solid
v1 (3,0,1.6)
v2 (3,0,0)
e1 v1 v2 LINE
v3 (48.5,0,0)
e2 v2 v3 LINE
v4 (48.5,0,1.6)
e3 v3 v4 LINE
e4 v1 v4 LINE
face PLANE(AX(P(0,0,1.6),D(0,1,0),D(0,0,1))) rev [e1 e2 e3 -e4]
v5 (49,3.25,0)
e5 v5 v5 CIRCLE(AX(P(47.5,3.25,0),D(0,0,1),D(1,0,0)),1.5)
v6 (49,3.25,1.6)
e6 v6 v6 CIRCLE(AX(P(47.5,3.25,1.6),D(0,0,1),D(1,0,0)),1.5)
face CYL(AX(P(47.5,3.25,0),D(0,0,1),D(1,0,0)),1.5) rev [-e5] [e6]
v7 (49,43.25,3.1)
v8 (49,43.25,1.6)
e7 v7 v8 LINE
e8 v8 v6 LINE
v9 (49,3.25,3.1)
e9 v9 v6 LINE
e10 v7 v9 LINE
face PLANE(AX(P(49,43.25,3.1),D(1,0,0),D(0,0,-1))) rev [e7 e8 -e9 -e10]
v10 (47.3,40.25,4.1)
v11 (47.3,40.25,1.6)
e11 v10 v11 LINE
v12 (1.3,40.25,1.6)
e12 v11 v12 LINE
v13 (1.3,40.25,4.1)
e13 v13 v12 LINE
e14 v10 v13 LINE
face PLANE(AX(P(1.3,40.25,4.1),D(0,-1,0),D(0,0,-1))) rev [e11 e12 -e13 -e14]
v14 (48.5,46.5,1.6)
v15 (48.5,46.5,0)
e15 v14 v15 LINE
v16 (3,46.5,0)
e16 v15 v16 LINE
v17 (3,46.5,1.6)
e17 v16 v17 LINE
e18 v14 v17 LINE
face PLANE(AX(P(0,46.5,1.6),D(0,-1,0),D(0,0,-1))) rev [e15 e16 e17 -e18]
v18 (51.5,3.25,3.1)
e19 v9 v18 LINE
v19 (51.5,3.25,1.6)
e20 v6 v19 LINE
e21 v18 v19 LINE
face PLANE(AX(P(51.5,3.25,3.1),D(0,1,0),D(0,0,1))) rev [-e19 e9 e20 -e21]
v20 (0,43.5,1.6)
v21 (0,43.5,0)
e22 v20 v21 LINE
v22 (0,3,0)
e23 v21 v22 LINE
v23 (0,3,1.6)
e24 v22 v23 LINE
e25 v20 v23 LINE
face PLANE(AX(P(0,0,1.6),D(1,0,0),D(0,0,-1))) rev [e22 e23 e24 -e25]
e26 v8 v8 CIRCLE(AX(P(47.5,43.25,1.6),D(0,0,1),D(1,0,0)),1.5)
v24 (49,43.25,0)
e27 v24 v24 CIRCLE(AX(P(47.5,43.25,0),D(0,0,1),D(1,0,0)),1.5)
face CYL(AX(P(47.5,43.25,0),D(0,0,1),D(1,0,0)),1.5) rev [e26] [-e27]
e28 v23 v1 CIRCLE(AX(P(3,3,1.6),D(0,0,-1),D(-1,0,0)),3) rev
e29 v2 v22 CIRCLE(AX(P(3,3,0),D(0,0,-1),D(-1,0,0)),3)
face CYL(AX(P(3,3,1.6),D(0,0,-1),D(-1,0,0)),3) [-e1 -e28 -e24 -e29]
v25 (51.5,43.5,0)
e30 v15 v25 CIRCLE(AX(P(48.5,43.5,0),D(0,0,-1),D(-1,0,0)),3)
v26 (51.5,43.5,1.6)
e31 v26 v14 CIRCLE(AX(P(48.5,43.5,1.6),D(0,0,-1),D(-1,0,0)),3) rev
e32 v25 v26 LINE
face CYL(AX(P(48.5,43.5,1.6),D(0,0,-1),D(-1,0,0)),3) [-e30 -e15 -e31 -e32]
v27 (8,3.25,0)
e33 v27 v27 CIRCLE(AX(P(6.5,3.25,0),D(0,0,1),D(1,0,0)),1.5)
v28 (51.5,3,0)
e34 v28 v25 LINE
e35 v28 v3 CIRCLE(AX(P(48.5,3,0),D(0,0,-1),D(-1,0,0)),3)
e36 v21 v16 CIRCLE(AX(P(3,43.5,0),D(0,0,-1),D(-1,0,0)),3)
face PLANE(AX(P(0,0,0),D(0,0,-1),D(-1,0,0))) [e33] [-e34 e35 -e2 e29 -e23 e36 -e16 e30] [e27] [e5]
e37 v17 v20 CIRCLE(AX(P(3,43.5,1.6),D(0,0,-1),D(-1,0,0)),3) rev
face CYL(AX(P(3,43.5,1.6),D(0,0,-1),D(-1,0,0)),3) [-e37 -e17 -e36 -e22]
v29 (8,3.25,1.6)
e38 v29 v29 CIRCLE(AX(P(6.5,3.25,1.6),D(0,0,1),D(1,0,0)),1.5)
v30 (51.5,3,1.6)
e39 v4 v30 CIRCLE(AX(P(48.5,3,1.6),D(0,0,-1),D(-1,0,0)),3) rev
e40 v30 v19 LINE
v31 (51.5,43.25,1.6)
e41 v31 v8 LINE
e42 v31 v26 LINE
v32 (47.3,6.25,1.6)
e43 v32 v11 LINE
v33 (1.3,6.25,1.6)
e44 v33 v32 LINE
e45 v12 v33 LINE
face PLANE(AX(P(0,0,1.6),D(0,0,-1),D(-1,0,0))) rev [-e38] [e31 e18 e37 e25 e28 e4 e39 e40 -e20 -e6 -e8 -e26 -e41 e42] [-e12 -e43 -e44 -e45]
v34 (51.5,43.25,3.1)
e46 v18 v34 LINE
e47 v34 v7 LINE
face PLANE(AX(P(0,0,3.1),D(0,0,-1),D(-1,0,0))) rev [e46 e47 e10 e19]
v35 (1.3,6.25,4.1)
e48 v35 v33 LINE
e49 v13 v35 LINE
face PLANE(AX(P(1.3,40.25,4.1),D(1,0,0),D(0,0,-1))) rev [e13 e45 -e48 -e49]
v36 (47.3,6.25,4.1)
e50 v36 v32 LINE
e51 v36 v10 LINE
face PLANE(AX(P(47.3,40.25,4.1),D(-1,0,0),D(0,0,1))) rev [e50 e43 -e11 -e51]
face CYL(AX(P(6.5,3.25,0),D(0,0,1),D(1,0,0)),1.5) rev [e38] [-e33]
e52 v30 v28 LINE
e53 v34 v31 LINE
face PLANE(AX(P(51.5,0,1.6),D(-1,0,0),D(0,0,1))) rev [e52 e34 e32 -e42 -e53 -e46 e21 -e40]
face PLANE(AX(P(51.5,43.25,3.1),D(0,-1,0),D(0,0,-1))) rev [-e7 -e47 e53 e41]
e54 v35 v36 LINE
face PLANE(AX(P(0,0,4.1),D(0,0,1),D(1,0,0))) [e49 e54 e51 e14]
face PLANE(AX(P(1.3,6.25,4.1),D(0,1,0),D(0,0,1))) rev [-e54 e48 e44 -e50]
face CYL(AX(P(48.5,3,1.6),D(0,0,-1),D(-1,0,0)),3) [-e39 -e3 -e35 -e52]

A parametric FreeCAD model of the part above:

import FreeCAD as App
import Part
import Sketcher

V = App.Vector


def edges_at(feature, points):
    """Names of the edges that pass closest to the given points."""
    edges = feature.Shape.Edges
    near = lambda p: min(range(len(edges)), key=lambda i: edges[i].distToShape(Part.Vertex(*p))[0])
    return sorted({f"Edge{near(p) + 1}" for p in points})

doc = App.newDocument("Part")
params = doc.addObject("Spreadsheet::Sheet", "Params")
for row, (alias, value) in enumerate([
    ("sketch1_width", "51.5 mm"),
    ("sketch1_height", "46.5 mm"),
    ("pad1_length", "1.6 mm"),
    ("sketch2_width", "46 mm"),
    ("sketch2_height", "34 mm"),
    ("pad2_length", "2.5 mm"),
    ("sketch3_height", "40 mm"),
    ("sketch3_width", "2.5 mm"),
    ("pad3_length", "1.5 mm"),
    ("sketch4_diameter", "3 mm"),
    ("fillet_radius", "3 mm"),
], start=1):
    params.set(f"A{row}", alias)
    params.set(f"B{row}", "=" + value)
    params.setAlias(f"B{row}", alias)

body = doc.addObject("PartDesign::Body", "Body")

sketch1 = body.newObject("Sketcher::SketchObject", "Sketch")
sketch1.AttachmentSupport = (doc.getObject("XY_Plane"), [""])
sketch1.MapMode = "FlatFace"
sketch1.addGeometry([
    Part.LineSegment(V(0, 46, 0), V(0, 0, 0)),
    Part.LineSegment(V(0, 0, 0), V(52, 0, 0)),
    Part.LineSegment(V(52, 0, 0), V(52, 46, 0)),
    Part.LineSegment(V(52, 46, 0), V(0, 46, 0)),
], False)
sketch1.addConstraint([
    Sketcher.Constraint("Coincident", 0, 2, 1, 1),
    Sketcher.Constraint("Coincident", 1, 2, 2, 1),
    Sketcher.Constraint("Coincident", 2, 2, 3, 1),
    Sketcher.Constraint("Coincident", 3, 2, 0, 1),
    Sketcher.Constraint("Vertical", 0),
    Sketcher.Constraint("Horizontal", 1),
    Sketcher.Constraint("Vertical", 2),
    Sketcher.Constraint("Horizontal", 3),
    Sketcher.Constraint("Coincident", 0, 2, -1, 1),
    Sketcher.Constraint("DistanceX", 1, 1, 1, 2, 51.5),
    Sketcher.Constraint("DistanceY", 0, 2, 0, 1, 46.5),
])
sketch1.setExpression("Constraints[9]", "Params.sketch1_width")
sketch1.setExpression("Constraints[10]", "Params.sketch1_height")
pad1 = body.newObject("PartDesign::Pad", "Pad")
pad1.Profile = sketch1
pad1.setExpression("Length", "Params.pad1_length")

sketch2 = body.newObject("Sketcher::SketchObject", "Sketch001")
sketch2.AttachmentSupport = (doc.getObject("XY_Plane"), [""])
sketch2.MapMode = "FlatFace"
sketch2.AttachmentOffset = App.Placement(V(0, 0, 1.6), App.Rotation())
sketch2.addGeometry([
    Part.LineSegment(V(1, 40, 0), V(1, 6, 0)),
    Part.LineSegment(V(1, 6, 0), V(47, 6, 0)),
    Part.LineSegment(V(47, 6, 0), V(47, 40, 0)),
    Part.LineSegment(V(47, 40, 0), V(1, 40, 0)),
], False)
sketch2.addConstraint([
    Sketcher.Constraint("Coincident", 0, 2, 1, 1),
    Sketcher.Constraint("Coincident", 1, 2, 2, 1),
    Sketcher.Constraint("Coincident", 2, 2, 3, 1),
    Sketcher.Constraint("Coincident", 3, 2, 0, 1),
    Sketcher.Constraint("Vertical", 0),
    Sketcher.Constraint("Horizontal", 1),
    Sketcher.Constraint("Vertical", 2),
    Sketcher.Constraint("Horizontal", 3),
    Sketcher.Constraint("DistanceX", 1, 1, 1, 2, 46.0),
    Sketcher.Constraint("DistanceY", 0, 2, 0, 1, 34.0),
    Sketcher.Constraint("DistanceX", -1, 1, 0, 2, 1.3),
    Sketcher.Constraint("DistanceY", -1, 1, 0, 2, 6.25),
])
sketch2.setExpression("Constraints[8]", "Params.sketch2_width")
sketch2.setExpression("Constraints[9]", "Params.sketch2_height")
pad2 = body.newObject("PartDesign::Pad", "Pad001")
pad2.Profile = sketch2
pad2.setExpression("Length", "Params.pad2_length")

sketch3 = body.newObject("Sketcher::SketchObject", "Sketch002")
sketch3.AttachmentSupport = (doc.getObject("XY_Plane"), [""])
sketch3.MapMode = "FlatFace"
sketch3.AttachmentOffset = App.Placement(V(0, 0, 1.6), App.Rotation())
sketch3.addGeometry([
    Part.LineSegment(V(49, 43.2, 0), V(49, 3.2, 0)),
    Part.LineSegment(V(49, 3.2, 0), V(51.5, 3.2, 0)),
    Part.LineSegment(V(51.5, 3.2, 0), V(51.5, 43.2, 0)),
    Part.LineSegment(V(51.5, 43.2, 0), V(49, 43.2, 0)),
], False)
sketch3.addConstraint([
    Sketcher.Constraint("Coincident", 0, 2, 1, 1),
    Sketcher.Constraint("Coincident", 1, 2, 2, 1),
    Sketcher.Constraint("Coincident", 2, 2, 3, 1),
    Sketcher.Constraint("Coincident", 3, 2, 0, 1),
    Sketcher.Constraint("Vertical", 0),
    Sketcher.Constraint("Horizontal", 1),
    Sketcher.Constraint("Vertical", 2),
    Sketcher.Constraint("Horizontal", 3),
    Sketcher.Constraint("DistanceY", 0, 2, 0, 1, 40.0),
    Sketcher.Constraint("DistanceX", 1, 1, 1, 2, 2.5),
    Sketcher.Constraint("DistanceX", -1, 1, 0, 2, 49.0),
    Sketcher.Constraint("DistanceY", -1, 1, 0, 2, 3.25),
])
sketch3.setExpression("Constraints[8]", "Params.sketch3_height")
sketch3.setExpression("Constraints[9]", "Params.sketch3_width")
pad3 = body.newObject("PartDesign::Pad", "Pad002")
pad3.Profile = sketch3
pad3.setExpression("Length", "Params.pad3_length")

sketch4 = body.newObject("Sketcher::SketchObject", "Sketch003")
sketch4.AttachmentSupport = (doc.getObject("XY_Plane"), [""])
sketch4.MapMode = "FlatFace"
sketch4.AttachmentOffset = App.Placement(V(0, 0, 1.6), App.Rotation())
sketch4.addGeometry([
    Part.Circle(V(47.5, 3.2, 0), V(0, 0, 1), 1.5),
    Part.Circle(V(47.5, 43.2, 0), V(0, 0, 1), 1.5),
    Part.Circle(V(6.5, 3.2, 0), V(0, 0, 1), 1.5),
], False)
sketch4.addConstraint([
    Sketcher.Constraint("Equal", 0, 1),
    Sketcher.Constraint("Equal", 1, 2),
    Sketcher.Constraint("Horizontal", 0, 3, 2, 3),
    Sketcher.Constraint("Vertical", 0, 3, 1, 3),
    Sketcher.Constraint("Diameter", 0, 3.0),
    Sketcher.Constraint("DistanceY", 0, 3, 1, 3, 40.0),
    Sketcher.Constraint("DistanceX", 2, 3, 0, 3, 41.0),
    Sketcher.Constraint("DistanceX", -1, 1, 0, 3, 47.5),
    Sketcher.Constraint("DistanceY", -1, 1, 0, 3, 3.25),
])
sketch4.setExpression("Constraints[4]", "Params.sketch4_diameter")
pocket1 = body.newObject("PartDesign::Pocket", "Pocket")
pocket1.Profile = sketch4
pocket1.Type = "ThroughAll"
doc.recompute()

fillet = body.newObject("PartDesign::Fillet", "Fillet")
fillet.Base = (pocket1, edges_at(pocket1, [
    (0, 46.5, 0.8),
    (51.5, 46.5, 0.8),
    (51.5, 0, 0.8),
    (0, 0, 0.8),
]))
fillet.setExpression("Radius", "Params.fillet_radius")

doc.recompute()
